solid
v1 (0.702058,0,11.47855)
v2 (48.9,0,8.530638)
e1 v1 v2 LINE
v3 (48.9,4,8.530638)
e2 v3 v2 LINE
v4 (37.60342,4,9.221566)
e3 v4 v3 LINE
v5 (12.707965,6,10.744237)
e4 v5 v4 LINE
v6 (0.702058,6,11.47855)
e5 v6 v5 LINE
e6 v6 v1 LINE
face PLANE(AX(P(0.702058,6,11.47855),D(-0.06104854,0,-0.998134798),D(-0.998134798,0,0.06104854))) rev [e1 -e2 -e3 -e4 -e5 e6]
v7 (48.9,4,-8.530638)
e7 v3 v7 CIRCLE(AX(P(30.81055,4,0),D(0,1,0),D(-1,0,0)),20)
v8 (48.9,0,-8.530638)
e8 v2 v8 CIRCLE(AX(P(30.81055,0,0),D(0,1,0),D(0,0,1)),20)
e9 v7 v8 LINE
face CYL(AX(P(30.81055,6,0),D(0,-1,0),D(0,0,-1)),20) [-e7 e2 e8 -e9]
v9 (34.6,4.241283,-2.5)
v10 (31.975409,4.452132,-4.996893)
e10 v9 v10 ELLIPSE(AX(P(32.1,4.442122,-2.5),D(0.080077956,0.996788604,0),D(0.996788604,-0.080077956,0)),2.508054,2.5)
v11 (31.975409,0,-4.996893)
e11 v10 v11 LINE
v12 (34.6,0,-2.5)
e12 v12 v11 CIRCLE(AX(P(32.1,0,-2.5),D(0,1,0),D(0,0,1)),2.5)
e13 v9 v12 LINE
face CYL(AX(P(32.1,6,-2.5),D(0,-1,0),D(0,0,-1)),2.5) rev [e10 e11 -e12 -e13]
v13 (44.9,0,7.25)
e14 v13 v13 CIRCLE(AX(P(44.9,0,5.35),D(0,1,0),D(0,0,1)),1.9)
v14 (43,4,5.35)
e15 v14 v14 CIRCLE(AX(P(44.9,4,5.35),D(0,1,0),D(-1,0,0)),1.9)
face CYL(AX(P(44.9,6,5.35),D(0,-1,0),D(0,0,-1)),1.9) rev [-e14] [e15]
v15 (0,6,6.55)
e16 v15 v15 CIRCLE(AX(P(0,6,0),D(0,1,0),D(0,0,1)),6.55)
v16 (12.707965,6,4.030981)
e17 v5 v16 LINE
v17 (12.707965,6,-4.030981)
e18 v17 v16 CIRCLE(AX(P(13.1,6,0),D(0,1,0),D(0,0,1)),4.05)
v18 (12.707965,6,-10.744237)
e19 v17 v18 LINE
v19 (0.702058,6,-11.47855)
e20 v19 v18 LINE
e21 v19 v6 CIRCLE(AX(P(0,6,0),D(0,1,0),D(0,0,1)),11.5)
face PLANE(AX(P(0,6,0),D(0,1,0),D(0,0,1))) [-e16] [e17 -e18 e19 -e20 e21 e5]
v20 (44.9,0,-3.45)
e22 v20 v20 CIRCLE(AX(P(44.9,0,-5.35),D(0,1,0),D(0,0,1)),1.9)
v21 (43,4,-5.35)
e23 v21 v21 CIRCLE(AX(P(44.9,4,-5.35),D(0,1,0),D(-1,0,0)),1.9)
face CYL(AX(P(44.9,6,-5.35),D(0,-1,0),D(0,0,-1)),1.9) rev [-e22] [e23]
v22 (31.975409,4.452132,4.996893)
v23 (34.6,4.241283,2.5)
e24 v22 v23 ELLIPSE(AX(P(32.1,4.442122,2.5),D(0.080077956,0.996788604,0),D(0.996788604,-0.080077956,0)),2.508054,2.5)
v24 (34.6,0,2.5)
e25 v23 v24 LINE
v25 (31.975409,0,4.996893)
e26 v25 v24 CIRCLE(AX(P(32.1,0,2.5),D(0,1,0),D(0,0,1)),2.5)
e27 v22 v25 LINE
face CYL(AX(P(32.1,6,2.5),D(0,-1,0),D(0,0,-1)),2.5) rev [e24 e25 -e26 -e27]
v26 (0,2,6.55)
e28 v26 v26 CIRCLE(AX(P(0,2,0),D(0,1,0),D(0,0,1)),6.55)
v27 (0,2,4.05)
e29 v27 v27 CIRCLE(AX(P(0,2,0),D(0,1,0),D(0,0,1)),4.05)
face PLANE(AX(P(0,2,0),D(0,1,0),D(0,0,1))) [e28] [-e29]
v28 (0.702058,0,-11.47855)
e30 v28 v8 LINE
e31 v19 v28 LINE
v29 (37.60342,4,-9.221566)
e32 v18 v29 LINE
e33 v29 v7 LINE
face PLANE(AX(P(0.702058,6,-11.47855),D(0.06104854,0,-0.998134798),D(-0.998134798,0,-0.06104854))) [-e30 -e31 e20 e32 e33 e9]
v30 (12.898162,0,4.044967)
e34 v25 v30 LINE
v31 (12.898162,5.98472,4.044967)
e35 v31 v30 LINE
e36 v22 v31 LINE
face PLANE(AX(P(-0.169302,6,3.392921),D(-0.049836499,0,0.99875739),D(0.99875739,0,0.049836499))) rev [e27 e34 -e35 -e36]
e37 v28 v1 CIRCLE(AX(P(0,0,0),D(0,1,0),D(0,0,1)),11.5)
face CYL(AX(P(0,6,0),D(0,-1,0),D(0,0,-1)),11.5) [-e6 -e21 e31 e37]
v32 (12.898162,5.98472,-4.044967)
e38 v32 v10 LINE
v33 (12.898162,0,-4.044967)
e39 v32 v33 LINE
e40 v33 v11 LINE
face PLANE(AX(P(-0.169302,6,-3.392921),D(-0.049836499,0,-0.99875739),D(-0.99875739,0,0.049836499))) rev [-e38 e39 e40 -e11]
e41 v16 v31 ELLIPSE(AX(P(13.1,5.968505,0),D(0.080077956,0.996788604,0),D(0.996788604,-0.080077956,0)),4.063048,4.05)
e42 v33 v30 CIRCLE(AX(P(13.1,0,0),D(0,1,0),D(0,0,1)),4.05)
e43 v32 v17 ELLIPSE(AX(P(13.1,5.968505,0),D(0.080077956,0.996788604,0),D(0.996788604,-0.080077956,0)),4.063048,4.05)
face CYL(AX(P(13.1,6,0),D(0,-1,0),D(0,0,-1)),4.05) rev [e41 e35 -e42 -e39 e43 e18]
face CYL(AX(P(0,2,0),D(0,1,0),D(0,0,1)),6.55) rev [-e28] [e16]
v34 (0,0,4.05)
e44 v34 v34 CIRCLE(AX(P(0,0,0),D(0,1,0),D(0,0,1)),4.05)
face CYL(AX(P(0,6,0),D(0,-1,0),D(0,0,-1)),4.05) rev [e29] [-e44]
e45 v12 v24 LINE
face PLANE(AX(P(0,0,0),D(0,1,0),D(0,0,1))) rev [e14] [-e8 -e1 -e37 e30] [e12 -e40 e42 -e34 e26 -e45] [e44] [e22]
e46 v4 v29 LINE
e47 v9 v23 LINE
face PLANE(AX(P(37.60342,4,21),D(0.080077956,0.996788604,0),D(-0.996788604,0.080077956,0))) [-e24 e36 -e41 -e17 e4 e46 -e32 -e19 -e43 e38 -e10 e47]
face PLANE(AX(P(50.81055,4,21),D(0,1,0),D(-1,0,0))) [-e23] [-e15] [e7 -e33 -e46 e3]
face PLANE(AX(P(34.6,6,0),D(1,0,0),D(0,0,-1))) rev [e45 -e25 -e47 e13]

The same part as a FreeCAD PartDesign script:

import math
import FreeCAD as App
import Part
import Sketcher
Q = App.Units.Quantity

doc = App.newDocument("Part")
body = doc.addObject("PartDesign::Body", "Body")

sketch1 = body.newObject("Sketcher::SketchObject", "Sketch")
sketch1.AttachmentSupport = (doc.getObject("XZ_Plane"), [""])
sketch1.MapMode = "FlatFace"
sketch1.addGeometry([
    Part.LineSegment(App.Vector(48.9, -8.5, 0), App.Vector(0.7, -11.5, 0)),
    Part.ArcOfCircle(Part.Circle(App.Vector(0, 0, 0), App.Vector(0, 0, 1), 11.5), math.radians(86), math.radians(274)),
    Part.LineSegment(App.Vector(0.7, 11.5, 0), App.Vector(48.9, 8.5, 0)),
    Part.ArcOfCircle(Part.Circle(App.Vector(30.8, 0, 0), App.Vector(0, 0, 1), 20), math.radians(-25), math.radians(25)),
    Part.Circle(App.Vector(44.9, 5.3, 0), App.Vector(0, 0, 1), 1.9),
    Part.LineSegment(App.Vector(12.9, -4, 0), App.Vector(32, -5, 0)),
    Part.ArcOfCircle(Part.Circle(App.Vector(32.1, -2.5, 0), App.Vector(0, 0, 1), 2.5), math.radians(-93), math.radians(0)),
    Part.LineSegment(App.Vector(34.6, -2.5, 0), App.Vector(34.6, 2.5, 0)),
    Part.ArcOfCircle(Part.Circle(App.Vector(32.1, 2.5, 0), App.Vector(0, 0, 1), 2.5), math.radians(0), math.radians(93)),
    Part.LineSegment(App.Vector(32, 5, 0), App.Vector(12.9, 4, 0)),
    Part.ArcOfCircle(Part.Circle(App.Vector(13.1, 0, 0), App.Vector(0, 0, 1), 4), math.radians(93), math.radians(267)),
    Part.Circle(App.Vector(44.9, -5.3, 0), App.Vector(0, 0, 1), 1.9),
    Part.Circle(App.Vector(0, 0, 0), App.Vector(0, 0, 1), 4),
], False)
sketch1.addConstraint([
    Sketcher.Constraint("Tangent", 0, 2, 1, 2),
    Sketcher.Constraint("Tangent", 1, 1, 2, 1),
    Sketcher.Constraint("Coincident", 2, 2, 3, 2),
    Sketcher.Constraint("Coincident", 3, 1, 0, 1),
    Sketcher.Constraint("Tangent", 5, 2, 6, 1),
    Sketcher.Constraint("Tangent", 6, 2, 7, 1),
    Sketcher.Constraint("Tangent", 7, 2, 8, 1),
    Sketcher.Constraint("Tangent", 8, 2, 9, 1),
    Sketcher.Constraint("Tangent", 9, 2, 10, 1),
    Sketcher.Constraint("Tangent", 10, 2, 5, 1),
    Sketcher.Constraint("Vertical", 7),
    Sketcher.Constraint("Coincident", 1, 3, -1, 1),
    Sketcher.Constraint("Coincident", 12, 3, -1, 1),
    Sketcher.Constraint("Equal", 6, 8),
    Sketcher.Constraint("Equal", 4, 11),
    Sketcher.Constraint("Equal", 10, 12),
    Sketcher.Constraint("Symmetric", 4, 3, 11, 3, -1),
    Sketcher.Constraint("Symmetric", 2, 2, 3, 1, -1),
    Sketcher.Constraint("Symmetric", 5, 2, 8, 2, -1),
    Sketcher.Constraint("Radius", 3, 20.0),
    Sketcher.Constraint("Diameter", 4, 3.8),
    Sketcher.Constraint("Diameter", 12, 8.1),
    Sketcher.Constraint("Radius", 1, 11.5),
    Sketcher.Constraint("Radius", 6, 2.5),
    Sketcher.Constraint("DistanceY", 7, 1, 7, 2, 5.0),
    Sketcher.Constraint("Angle", 0, Q("-176.5 deg")),
    Sketcher.Constraint("DistanceX", 10, 3, 6, 3, 19.0),
    Sketcher.Constraint("DistanceX", 4, 3, 2, 2, 4.0),
    Sketcher.Constraint("DistanceX", -1, 1, 4, 3, 44.9),
    Sketcher.Constraint("DistanceX", -1, 1, 6, 3, 32.1),
    Sketcher.Constraint("DistanceY", 11, 3, 4, 3, 10.7),
])
pad1 = body.newObject("PartDesign::Pad", "Pad")
pad1.Profile = sketch1
pad1.Length = 6
pad1.Reversed = True

sketch2 = body.newObject("Sketcher::SketchObject", "Sketch001")
sketch2.AttachmentSupport = (doc.getObject("XZ_Plane"), [""])
sketch2.MapMode = "FlatFace"
sketch2.AttachmentOffset = App.Placement(App.Vector(0, 0, -6), App.Rotation())
sketch2.addGeometry(Part.Circle(App.Vector(0, 0, 0), App.Vector(0, 0, 1), 7), False)
sketch2.addConstraint([
    Sketcher.Constraint("Coincident", 0, 3, -1, 1),
    Sketcher.Constraint("Diameter", 0, 13.1),
])
pocket1 = body.newObject("PartDesign::Pocket", "Pocket")
pocket1.Profile = sketch2
pocket1.Length = 4
pocket1.Reversed = True

sketch3 = body.newObject("Sketcher::SketchObject", "Sketch002")
sketch3.AttachmentSupport = (doc.getObject("XY_Plane"), [""])
sketch3.MapMode = "FlatFace"
sketch3.addGeometry([
    Part.LineSegment(App.Vector(37.6, 4, 0), App.Vector(50.8, 4, 0)),
    Part.LineSegment(App.Vector(50.8, 4, 0), App.Vector(50.8, 6, 0)),
    Part.LineSegment(App.Vector(50.8, 6, 0), App.Vector(12.7, 6, 0)),
    Part.LineSegment(App.Vector(12.7, 6, 0), App.Vector(37.6, 4, 0)),
], False)
sketch3.addConstraint([
    Sketcher.Constraint("Coincident", 0, 2, 1, 1),
    Sketcher.Constraint("Coincident", 1, 2, 2, 1),
    Sketcher.Constraint("Coincident", 2, 2, 3, 1),
    Sketcher.Constraint("Coincident", 3, 2, 0, 1),
    Sketcher.Constraint("Horizontal", 0),
    Sketcher.Constraint("Vertical", 1),
    Sketcher.Constraint("Horizontal", 2),
    Sketcher.Constraint("DistanceY", 1, 1, 1, 2, 2.0),
    Sketcher.Constraint("DistanceY", -1, 1, 0, 2, 4.0),
    Sketcher.Constraint("DistanceX", 0, 1, 0, 2, 13.207129),
    Sketcher.Constraint("DistanceX", 2, 2, 2, 1, 38.102585),
    Sketcher.Constraint("DistanceX", -1, 1, 0, 2, 50.81055),
])
pocket2 = body.newObject("PartDesign::Pocket", "Pocket001")
pocket2.Profile = sketch3
pocket2.Type = "ThroughAll"
pocket2.Midplane = True

doc.recompute()
